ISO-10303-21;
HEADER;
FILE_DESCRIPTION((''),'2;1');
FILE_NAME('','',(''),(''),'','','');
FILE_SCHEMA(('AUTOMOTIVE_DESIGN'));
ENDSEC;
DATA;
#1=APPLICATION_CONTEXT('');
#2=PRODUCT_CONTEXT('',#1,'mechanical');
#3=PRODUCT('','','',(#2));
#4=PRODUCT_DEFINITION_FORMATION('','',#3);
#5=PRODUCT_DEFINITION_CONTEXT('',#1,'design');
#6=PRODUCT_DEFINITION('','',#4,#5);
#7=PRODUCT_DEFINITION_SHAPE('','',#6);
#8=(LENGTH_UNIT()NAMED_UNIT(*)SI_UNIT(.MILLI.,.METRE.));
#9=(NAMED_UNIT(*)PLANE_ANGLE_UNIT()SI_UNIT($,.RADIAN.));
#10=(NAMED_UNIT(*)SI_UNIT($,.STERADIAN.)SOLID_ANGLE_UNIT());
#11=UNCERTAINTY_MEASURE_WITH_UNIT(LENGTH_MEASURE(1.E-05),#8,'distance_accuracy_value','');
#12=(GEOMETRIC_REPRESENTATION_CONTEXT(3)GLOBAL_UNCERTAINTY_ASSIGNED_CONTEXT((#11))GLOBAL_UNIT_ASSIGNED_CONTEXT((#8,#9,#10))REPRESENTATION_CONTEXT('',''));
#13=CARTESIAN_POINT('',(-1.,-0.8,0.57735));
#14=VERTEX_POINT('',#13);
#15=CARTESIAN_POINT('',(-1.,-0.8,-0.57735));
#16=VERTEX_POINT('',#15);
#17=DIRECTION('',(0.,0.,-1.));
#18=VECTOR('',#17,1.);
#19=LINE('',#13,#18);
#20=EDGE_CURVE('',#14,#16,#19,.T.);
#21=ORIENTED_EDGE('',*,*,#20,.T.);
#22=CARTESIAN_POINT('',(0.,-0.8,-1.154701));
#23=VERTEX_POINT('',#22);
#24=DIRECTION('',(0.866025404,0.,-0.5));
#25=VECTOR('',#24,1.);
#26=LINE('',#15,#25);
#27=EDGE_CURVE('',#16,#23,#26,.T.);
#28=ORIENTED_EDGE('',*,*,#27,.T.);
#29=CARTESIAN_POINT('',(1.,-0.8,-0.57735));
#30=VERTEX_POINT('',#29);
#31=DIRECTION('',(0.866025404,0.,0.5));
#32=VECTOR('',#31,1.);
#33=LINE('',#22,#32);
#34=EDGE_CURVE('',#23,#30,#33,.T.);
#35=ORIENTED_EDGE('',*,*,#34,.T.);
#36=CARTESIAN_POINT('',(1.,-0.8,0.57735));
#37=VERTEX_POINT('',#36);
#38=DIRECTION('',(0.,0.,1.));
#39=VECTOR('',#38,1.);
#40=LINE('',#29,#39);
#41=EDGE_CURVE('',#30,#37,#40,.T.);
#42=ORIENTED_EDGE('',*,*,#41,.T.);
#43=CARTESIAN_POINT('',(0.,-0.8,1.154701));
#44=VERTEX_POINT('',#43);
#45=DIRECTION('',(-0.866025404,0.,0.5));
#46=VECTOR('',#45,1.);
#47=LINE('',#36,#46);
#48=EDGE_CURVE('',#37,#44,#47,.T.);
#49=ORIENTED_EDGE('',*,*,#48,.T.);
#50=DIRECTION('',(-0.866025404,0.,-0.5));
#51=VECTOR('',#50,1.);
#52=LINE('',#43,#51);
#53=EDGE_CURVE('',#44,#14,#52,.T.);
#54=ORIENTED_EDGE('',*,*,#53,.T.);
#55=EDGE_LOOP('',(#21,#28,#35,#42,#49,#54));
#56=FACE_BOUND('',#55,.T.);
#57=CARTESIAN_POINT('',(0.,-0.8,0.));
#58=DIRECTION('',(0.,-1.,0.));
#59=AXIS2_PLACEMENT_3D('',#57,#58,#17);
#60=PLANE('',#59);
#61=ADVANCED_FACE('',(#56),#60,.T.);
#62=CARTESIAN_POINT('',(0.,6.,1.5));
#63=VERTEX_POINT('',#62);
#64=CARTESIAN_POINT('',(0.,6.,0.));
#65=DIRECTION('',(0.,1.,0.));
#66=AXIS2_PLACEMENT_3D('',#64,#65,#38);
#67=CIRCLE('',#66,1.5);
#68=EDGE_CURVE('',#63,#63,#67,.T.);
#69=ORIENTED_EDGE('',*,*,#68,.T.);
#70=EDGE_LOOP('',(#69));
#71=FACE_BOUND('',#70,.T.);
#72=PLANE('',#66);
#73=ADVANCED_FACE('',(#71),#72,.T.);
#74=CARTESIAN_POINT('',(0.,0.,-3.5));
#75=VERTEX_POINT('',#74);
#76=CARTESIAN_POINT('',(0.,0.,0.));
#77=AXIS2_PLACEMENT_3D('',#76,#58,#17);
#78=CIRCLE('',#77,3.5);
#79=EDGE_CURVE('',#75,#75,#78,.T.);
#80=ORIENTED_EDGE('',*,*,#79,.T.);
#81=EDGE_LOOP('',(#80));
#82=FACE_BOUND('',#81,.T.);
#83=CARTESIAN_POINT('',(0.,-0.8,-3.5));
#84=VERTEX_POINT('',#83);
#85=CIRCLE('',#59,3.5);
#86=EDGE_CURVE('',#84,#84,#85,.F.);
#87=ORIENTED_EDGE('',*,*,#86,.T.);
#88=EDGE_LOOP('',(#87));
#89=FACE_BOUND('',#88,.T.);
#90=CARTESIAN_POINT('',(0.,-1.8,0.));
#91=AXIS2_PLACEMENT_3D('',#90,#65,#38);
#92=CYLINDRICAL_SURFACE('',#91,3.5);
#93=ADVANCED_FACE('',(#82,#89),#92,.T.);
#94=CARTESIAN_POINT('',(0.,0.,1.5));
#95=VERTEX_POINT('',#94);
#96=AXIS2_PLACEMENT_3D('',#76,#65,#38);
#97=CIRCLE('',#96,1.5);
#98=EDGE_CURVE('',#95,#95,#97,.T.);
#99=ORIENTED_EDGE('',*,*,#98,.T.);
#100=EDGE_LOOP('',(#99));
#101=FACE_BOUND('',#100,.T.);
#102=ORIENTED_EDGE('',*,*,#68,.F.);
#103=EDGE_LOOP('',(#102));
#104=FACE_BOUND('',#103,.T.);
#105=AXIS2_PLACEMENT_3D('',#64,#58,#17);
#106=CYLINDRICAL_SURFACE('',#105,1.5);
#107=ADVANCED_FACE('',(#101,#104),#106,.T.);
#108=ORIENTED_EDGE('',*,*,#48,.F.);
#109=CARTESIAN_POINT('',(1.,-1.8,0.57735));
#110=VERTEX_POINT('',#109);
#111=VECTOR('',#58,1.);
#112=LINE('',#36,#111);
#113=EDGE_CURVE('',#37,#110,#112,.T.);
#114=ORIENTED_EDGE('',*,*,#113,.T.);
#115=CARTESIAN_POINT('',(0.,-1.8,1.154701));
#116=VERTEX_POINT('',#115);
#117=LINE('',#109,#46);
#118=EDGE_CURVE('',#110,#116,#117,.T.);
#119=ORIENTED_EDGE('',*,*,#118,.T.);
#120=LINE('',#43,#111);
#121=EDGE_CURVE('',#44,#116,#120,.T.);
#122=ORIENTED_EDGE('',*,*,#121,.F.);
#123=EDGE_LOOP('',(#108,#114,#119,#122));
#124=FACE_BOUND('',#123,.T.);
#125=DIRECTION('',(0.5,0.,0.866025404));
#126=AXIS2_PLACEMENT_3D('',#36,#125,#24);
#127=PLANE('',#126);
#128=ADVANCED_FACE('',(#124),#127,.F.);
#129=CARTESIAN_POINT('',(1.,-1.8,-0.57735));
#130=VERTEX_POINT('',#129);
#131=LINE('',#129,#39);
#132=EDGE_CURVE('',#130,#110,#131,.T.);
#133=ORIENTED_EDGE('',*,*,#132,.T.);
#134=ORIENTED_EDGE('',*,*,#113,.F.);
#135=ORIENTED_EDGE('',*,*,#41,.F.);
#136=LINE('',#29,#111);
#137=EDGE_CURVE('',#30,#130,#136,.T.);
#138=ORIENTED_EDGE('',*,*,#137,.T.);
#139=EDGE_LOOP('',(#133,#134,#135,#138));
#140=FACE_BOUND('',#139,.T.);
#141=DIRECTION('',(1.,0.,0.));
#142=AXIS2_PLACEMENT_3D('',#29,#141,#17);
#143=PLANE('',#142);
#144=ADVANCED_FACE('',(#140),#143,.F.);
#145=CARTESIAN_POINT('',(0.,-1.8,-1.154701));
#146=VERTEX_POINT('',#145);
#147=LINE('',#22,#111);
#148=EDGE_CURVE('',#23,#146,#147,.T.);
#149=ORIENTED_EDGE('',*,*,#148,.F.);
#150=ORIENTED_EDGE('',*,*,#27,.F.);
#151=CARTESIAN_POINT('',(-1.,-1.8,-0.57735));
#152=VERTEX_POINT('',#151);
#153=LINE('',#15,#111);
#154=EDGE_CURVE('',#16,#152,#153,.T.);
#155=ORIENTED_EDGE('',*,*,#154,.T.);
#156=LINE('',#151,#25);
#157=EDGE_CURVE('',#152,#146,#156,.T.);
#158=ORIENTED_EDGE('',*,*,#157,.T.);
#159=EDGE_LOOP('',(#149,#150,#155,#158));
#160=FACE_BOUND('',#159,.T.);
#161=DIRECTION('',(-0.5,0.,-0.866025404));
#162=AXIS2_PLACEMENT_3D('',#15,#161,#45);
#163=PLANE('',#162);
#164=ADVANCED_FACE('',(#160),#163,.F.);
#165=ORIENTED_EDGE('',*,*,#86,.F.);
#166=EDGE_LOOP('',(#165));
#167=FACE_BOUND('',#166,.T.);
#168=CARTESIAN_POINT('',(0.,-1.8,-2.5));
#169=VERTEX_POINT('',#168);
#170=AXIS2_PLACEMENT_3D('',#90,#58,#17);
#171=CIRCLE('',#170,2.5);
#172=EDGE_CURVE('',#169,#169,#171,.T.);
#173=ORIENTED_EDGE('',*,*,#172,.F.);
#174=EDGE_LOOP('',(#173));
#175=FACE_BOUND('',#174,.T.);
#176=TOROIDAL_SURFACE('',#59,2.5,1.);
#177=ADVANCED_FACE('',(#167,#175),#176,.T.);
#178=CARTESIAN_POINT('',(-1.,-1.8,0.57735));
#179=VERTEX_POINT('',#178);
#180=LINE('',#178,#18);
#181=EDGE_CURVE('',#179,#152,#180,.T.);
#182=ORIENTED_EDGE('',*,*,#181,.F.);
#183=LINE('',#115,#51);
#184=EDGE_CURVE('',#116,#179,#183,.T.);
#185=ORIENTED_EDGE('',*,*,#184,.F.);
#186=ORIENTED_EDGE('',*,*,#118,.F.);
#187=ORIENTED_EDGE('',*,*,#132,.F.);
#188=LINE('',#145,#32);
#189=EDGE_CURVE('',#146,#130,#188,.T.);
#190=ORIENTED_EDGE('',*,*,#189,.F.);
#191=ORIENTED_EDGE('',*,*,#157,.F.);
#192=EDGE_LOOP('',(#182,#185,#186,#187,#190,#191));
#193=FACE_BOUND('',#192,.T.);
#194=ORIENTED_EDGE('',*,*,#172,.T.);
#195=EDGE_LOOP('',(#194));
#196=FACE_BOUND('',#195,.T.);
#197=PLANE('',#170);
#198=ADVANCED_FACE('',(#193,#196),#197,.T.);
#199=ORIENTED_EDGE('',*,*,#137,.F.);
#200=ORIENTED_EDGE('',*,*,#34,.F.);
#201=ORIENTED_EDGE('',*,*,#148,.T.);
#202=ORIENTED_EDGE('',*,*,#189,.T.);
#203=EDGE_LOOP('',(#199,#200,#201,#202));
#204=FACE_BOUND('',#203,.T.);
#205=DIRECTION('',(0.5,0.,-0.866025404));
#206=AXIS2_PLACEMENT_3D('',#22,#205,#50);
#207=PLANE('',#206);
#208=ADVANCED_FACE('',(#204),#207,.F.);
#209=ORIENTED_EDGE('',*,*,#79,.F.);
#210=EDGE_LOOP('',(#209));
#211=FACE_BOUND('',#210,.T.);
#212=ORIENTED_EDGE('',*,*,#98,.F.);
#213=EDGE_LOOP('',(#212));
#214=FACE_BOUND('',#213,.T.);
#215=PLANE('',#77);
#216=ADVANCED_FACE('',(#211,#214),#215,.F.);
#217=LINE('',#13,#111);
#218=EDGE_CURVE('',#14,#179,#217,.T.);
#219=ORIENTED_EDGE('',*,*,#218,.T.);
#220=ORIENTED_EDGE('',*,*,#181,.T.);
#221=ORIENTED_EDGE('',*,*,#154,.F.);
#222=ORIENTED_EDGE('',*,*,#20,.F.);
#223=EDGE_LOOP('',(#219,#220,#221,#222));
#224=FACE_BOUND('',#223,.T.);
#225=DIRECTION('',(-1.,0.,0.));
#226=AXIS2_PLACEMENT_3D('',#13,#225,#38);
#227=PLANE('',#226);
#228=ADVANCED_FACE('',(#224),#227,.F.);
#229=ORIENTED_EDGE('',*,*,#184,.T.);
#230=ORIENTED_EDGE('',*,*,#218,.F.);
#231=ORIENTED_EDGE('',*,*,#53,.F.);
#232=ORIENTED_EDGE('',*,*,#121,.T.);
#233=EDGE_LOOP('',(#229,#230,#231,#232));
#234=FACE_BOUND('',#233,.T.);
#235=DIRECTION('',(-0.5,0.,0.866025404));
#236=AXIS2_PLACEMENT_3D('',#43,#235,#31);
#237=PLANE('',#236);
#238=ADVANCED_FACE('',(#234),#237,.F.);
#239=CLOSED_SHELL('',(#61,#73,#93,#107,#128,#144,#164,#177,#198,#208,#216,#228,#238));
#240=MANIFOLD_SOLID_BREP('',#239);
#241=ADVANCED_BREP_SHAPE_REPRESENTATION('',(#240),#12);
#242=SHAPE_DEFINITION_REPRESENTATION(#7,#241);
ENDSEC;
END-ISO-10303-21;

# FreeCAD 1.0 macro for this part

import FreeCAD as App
import Part
import Sketcher

V = App.Vector
Q = App.Units.Quantity


def edges_at(feature, points):
    """Names of the edges that pass closest to the given points."""
    edges = feature.Shape.Edges
    near = lambda p: min(range(len(edges)), key=lambda i: edges[i].distToShape(Part.Vertex(*p))[0])
    return sorted({f"Edge{near(p) + 1}" for p in points})


def add_polygon(sketch, points):
    """Adds a closed chain of lines whose ends are joined by coincident constraints."""
    first, n = sketch.GeometryCount, len(points)
    for a, b in zip(points, points[1:] + points[:1]):
        sketch.addGeometry(Part.LineSegment(App.Vector(*a, 0), App.Vector(*b, 0)), False)
    for i in range(n):
        sketch.addConstraint(Sketcher.Constraint("Coincident", first + i, 2, first + (i + 1) % n, 1))

doc = App.newDocument("Part")
body = doc.addObject("PartDesign::Body", "Body")

# Sketch on XZ plane
sketch1 = body.newObject("Sketcher::SketchObject", "Sketch")
sketch1.AttachmentSupport = (doc.getObject("XZ_Plane"), [""])
sketch1.MapMode = "FlatFace"
sketch1.addGeometry(Part.Circle(V(0, 0, 0), V(0, 0, 1), 1.5), False)
sketch1.addConstraint(Sketcher.Constraint("Coincident", 0, 3, -1, 1))
sketch1.addConstraint(Sketcher.Constraint("Diameter", 0, Q("3 mm")))
pad1 = body.newObject("PartDesign::Pad", "Pad")
pad1.Profile = sketch1
pad1.Length = 6
pad1.Reversed = True

# Sketch on XZ plane
sketch2 = body.newObject("Sketcher::SketchObject", "Sketch001")
sketch2.AttachmentSupport = (doc.getObject("XZ_Plane"), [""])
sketch2.MapMode = "FlatFace"
sketch2.addGeometry(Part.Circle(V(0, 0, 0), V(0, 0, 1), 3.5), False)
sketch2.addConstraint(Sketcher.Constraint("Coincident", 0, 3, -1, 1))
sketch2.addConstraint(Sketcher.Constraint("Diameter", 0, Q("7 mm")))
pad2 = body.newObject("PartDesign::Pad", "Pad001")
pad2.Profile = sketch2
pad2.Length = 1.8

# Sketch on XZ plane
sketch3 = body.newObject("Sketcher::SketchObject", "Sketch002")
sketch3.AttachmentSupport = (doc.getObject("XZ_Plane"), [""])
sketch3.MapMode = "FlatFace"
sketch3.AttachmentOffset = App.Placement(V(0, 0, 1.8), App.Rotation())
add_polygon(sketch3, [(1, 0.57735), (0, 1.154701), (-1, 0.57735), (-1, -0.57735), (0, -1.154701), (1, -0.57735)])  # lines 0-5
sketch3.addConstraint(Sketcher.Constraint("Vertical", 2))
sketch3.addConstraint(Sketcher.Constraint("Vertical", 5))
sketch3.addConstraint(Sketcher.Constraint("Symmetric", 0, 2, 3, 2, -1, 1))
sketch3.addConstraint(Sketcher.Constraint("Symmetric", 1, 2, 4, 2, -1, 1))
sketch3.addConstraint(Sketcher.Constraint("PointOnObject", 0, 2, -2))
sketch3.addConstraint(Sketcher.Constraint("Parallel", 0, 3))
sketch3.addConstraint(Sketcher.Constraint("Horizontal", 2, 2, 4, 2))
sketch3.addConstraint(Sketcher.Constraint("Angle", 0, Q("150 deg")))
sketch3.addConstraint(Sketcher.Constraint("DistanceX", 1, 2, -1, 1, Q("1 mm")))
sketch3.addConstraint(Sketcher.Constraint("DistanceY", 2, 2, 2, 1, Q("1.154701 mm")))
pocket1 = body.newObject("PartDesign::Pocket", "Pocket")
pocket1.Profile = sketch3
pocket1.Length = 1
doc.recompute()

fillet = body.newObject("PartDesign::Fillet", "Fillet")
fillet.Base = (pocket1, edges_at(pocket1, [(0, -1.8, 3.5)]))
fillet.Radius = 1

doc.recompute()
